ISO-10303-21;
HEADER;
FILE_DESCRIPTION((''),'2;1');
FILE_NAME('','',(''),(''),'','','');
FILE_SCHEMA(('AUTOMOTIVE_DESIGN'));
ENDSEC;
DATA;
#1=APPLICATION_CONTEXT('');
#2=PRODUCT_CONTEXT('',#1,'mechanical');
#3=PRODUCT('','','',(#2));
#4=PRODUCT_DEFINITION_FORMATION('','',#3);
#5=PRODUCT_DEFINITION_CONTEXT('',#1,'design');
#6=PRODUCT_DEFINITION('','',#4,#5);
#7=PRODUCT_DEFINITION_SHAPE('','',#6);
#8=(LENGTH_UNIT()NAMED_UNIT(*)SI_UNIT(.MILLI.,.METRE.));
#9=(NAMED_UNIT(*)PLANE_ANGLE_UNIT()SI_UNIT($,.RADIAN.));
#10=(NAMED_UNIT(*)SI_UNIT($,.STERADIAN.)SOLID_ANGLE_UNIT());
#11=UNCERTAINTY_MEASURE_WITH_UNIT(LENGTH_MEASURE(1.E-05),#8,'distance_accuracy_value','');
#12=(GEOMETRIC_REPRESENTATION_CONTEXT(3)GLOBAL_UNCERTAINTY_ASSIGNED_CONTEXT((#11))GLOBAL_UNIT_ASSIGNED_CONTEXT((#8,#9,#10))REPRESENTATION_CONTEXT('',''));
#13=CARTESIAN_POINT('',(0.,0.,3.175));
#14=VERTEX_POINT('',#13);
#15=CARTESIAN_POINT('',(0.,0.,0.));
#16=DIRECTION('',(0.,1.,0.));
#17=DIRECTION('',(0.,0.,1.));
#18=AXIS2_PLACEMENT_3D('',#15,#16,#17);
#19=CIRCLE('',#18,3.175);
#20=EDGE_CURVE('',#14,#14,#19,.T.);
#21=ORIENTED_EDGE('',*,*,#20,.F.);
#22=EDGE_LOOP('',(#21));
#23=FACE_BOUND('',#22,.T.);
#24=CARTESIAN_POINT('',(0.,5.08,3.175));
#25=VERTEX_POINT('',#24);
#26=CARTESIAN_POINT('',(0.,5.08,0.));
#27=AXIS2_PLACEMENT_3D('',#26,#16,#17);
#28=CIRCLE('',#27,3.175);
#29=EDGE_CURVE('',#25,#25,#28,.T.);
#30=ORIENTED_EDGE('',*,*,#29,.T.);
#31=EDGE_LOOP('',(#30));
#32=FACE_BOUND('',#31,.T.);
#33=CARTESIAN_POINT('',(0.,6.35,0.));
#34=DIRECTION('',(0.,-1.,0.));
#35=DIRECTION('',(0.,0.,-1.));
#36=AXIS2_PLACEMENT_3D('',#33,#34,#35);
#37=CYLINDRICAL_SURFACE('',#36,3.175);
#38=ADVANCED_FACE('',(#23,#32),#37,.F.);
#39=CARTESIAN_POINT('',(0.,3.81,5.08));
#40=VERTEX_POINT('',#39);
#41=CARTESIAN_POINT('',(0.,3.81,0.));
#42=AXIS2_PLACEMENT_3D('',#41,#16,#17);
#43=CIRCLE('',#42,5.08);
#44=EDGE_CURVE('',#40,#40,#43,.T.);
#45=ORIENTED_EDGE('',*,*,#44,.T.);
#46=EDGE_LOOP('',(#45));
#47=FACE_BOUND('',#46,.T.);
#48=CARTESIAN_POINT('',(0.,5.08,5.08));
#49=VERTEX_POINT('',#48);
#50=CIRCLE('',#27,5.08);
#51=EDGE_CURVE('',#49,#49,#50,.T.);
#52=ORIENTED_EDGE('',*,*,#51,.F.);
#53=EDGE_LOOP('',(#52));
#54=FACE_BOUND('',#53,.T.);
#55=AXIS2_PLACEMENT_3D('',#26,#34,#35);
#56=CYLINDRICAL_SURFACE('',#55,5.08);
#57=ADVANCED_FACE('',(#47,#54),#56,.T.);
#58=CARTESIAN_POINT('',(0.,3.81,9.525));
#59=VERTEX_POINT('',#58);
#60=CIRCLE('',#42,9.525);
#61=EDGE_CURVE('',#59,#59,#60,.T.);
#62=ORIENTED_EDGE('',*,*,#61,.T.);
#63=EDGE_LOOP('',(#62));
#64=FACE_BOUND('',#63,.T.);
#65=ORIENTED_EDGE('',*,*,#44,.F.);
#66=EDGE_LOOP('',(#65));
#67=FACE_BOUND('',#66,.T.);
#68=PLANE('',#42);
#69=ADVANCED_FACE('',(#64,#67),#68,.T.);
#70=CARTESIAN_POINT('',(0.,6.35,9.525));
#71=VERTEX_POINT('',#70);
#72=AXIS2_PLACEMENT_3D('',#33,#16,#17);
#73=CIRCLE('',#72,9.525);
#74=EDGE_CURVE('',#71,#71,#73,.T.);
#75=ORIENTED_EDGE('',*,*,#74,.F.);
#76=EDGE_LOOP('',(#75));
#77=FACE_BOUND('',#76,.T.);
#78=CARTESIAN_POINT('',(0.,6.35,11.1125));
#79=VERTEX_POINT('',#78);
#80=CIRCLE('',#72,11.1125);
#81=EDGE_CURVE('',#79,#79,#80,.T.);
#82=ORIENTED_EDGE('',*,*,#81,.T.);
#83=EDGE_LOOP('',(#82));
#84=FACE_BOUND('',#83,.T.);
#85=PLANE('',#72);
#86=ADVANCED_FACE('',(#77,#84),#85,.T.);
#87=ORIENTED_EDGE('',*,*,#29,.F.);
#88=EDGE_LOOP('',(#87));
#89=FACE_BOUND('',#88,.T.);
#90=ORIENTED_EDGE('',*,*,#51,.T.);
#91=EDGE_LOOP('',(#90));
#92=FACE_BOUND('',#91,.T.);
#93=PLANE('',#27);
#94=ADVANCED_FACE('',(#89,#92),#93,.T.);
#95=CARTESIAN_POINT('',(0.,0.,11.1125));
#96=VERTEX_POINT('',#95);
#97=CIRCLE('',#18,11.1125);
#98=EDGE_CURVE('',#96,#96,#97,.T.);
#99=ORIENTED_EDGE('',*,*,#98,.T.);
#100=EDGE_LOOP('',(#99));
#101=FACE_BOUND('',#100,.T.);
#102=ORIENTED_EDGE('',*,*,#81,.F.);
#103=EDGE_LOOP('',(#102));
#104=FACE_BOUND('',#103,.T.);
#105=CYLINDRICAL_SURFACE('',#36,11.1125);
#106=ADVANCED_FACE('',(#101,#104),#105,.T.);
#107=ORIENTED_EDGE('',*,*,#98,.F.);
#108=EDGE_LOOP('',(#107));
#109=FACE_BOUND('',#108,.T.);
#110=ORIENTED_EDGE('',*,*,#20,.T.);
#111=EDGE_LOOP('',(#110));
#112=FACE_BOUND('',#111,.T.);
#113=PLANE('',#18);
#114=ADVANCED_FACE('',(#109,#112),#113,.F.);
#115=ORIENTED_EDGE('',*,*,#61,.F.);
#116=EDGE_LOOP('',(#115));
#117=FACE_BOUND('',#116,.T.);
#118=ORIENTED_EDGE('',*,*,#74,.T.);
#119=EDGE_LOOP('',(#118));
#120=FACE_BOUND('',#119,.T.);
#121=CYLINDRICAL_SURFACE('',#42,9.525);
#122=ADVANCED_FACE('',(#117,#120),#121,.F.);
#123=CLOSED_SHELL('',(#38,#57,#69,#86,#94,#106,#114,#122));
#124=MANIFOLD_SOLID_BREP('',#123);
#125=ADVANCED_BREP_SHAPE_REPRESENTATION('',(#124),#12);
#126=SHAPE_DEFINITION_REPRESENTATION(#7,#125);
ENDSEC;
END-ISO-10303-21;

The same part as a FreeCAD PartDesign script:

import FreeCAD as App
import Part
import Sketcher
Q = App.Units.Quantity

doc = App.newDocument("Part")
params = doc.addObject("Spreadsheet::Sheet", "Params")
for row, (alias, value) in enumerate([
    ("sketch1_diameter", "0.25 in"),
    ("sketch1_diameter2", "0.875 in"),
    ("pad1_length", "0.25 in"),
    ("sketch2_diameter", "0.75 in"),
    ("pocket1_length", "0.1 in"),
    ("sketch3_diameter", "0.4 in"),
    ("sketch3_diameter2", "0.25 in"),
    ("pad2_length", "0.05 in"),
], start=1):
    params.set(f"A{row}", alias)
    params.set(f"B{row}", "=" + value)
    params.setAlias(f"B{row}", alias)

body = doc.addObject("PartDesign::Body", "Body")

sketch1 = body.newObject("Sketcher::SketchObject", "Sketch")
sketch1.AttachmentSupport = (doc.getObject("XZ_Plane"), [""])
sketch1.MapMode = "FlatFace"
sketch1.addGeometry([
    Part.Circle(App.Vector(0, 0, 0), App.Vector(0, 0, 1), 11.1),
    Part.Circle(App.Vector(0, 0, 0), App.Vector(0, 0, 1), 3.2),
], False)
sketch1.addConstraint([
    Sketcher.Constraint("Coincident", 0, 3, -1, 1),
    Sketcher.Constraint("Coincident", 1, 3, -1, 1),
    Sketcher.Constraint("Diameter", 1, Q("0.25 in")),
    Sketcher.Constraint("Diameter", 0, Q("0.875 in")),
])
sketch1.setExpression("Constraints[2]", "Params.sketch1_diameter")
sketch1.setExpression("Constraints[3]", "Params.sketch1_diameter2")
pad1 = body.newObject("PartDesign::Pad", "Pad")
pad1.Profile = sketch1
pad1.setExpression("Length", "Params.pad1_length")
pad1.Reversed = True

sketch2 = body.newObject("Sketcher::SketchObject", "Sketch001")
sketch2.AttachmentSupport = (doc.getObject("XZ_Plane"), [""])
sketch2.MapMode = "FlatFace"
sketch2.AttachmentOffset = App.Placement(App.Vector(0, 0, -0.25 * 25.4), App.Rotation())
sketch2.addGeometry(Part.Circle(App.Vector(0, 0, 0), App.Vector(0, 0, 1), 10), False)
sketch2.addConstraint([
    Sketcher.Constraint("Coincident", 0, 3, -1, 1),
    Sketcher.Constraint("Diameter", 0, Q("0.75 in")),
])
sketch2.setExpression("Constraints[1]", "Params.sketch2_diameter")
pocket1 = body.newObject("PartDesign::Pocket", "Pocket")
pocket1.Profile = sketch2
pocket1.setExpression("Length", "Params.pocket1_length")
pocket1.Reversed = True

sketch3 = body.newObject("Sketcher::SketchObject", "Sketch002")
sketch3.AttachmentSupport = (doc.getObject("XZ_Plane"), [""])
sketch3.MapMode = "FlatFace"
sketch3.AttachmentOffset = App.Placement(App.Vector(0, 0, -0.15 * 25.4), App.Rotation())
sketch3.addGeometry([
    Part.Circle(App.Vector(0, 0, 0), App.Vector(0, 0, 1), 5.1),
    Part.Circle(App.Vector(0, 0, 0), App.Vector(0, 0, 1), 3.2),
], False)
sketch3.addConstraint([
    Sketcher.Constraint("Coincident", 0, 3, -1, 1),
    Sketcher.Constraint("Coincident", 1, 3, -1, 1),
    Sketcher.Constraint("Diameter", 0, Q("0.4 in")),
    Sketcher.Constraint("Diameter", 1, Q("0.25 in")),
])
sketch3.setExpression("Constraints[2]", "Params.sketch3_diameter")
sketch3.setExpression("Constraints[3]", "Params.sketch3_diameter2")
pad2 = body.newObject("PartDesign::Pad", "Pad001")
pad2.Profile = sketch3
pad2.setExpression("Length", "Params.pad2_length")
pad2.Reversed = True

doc.recompute()
